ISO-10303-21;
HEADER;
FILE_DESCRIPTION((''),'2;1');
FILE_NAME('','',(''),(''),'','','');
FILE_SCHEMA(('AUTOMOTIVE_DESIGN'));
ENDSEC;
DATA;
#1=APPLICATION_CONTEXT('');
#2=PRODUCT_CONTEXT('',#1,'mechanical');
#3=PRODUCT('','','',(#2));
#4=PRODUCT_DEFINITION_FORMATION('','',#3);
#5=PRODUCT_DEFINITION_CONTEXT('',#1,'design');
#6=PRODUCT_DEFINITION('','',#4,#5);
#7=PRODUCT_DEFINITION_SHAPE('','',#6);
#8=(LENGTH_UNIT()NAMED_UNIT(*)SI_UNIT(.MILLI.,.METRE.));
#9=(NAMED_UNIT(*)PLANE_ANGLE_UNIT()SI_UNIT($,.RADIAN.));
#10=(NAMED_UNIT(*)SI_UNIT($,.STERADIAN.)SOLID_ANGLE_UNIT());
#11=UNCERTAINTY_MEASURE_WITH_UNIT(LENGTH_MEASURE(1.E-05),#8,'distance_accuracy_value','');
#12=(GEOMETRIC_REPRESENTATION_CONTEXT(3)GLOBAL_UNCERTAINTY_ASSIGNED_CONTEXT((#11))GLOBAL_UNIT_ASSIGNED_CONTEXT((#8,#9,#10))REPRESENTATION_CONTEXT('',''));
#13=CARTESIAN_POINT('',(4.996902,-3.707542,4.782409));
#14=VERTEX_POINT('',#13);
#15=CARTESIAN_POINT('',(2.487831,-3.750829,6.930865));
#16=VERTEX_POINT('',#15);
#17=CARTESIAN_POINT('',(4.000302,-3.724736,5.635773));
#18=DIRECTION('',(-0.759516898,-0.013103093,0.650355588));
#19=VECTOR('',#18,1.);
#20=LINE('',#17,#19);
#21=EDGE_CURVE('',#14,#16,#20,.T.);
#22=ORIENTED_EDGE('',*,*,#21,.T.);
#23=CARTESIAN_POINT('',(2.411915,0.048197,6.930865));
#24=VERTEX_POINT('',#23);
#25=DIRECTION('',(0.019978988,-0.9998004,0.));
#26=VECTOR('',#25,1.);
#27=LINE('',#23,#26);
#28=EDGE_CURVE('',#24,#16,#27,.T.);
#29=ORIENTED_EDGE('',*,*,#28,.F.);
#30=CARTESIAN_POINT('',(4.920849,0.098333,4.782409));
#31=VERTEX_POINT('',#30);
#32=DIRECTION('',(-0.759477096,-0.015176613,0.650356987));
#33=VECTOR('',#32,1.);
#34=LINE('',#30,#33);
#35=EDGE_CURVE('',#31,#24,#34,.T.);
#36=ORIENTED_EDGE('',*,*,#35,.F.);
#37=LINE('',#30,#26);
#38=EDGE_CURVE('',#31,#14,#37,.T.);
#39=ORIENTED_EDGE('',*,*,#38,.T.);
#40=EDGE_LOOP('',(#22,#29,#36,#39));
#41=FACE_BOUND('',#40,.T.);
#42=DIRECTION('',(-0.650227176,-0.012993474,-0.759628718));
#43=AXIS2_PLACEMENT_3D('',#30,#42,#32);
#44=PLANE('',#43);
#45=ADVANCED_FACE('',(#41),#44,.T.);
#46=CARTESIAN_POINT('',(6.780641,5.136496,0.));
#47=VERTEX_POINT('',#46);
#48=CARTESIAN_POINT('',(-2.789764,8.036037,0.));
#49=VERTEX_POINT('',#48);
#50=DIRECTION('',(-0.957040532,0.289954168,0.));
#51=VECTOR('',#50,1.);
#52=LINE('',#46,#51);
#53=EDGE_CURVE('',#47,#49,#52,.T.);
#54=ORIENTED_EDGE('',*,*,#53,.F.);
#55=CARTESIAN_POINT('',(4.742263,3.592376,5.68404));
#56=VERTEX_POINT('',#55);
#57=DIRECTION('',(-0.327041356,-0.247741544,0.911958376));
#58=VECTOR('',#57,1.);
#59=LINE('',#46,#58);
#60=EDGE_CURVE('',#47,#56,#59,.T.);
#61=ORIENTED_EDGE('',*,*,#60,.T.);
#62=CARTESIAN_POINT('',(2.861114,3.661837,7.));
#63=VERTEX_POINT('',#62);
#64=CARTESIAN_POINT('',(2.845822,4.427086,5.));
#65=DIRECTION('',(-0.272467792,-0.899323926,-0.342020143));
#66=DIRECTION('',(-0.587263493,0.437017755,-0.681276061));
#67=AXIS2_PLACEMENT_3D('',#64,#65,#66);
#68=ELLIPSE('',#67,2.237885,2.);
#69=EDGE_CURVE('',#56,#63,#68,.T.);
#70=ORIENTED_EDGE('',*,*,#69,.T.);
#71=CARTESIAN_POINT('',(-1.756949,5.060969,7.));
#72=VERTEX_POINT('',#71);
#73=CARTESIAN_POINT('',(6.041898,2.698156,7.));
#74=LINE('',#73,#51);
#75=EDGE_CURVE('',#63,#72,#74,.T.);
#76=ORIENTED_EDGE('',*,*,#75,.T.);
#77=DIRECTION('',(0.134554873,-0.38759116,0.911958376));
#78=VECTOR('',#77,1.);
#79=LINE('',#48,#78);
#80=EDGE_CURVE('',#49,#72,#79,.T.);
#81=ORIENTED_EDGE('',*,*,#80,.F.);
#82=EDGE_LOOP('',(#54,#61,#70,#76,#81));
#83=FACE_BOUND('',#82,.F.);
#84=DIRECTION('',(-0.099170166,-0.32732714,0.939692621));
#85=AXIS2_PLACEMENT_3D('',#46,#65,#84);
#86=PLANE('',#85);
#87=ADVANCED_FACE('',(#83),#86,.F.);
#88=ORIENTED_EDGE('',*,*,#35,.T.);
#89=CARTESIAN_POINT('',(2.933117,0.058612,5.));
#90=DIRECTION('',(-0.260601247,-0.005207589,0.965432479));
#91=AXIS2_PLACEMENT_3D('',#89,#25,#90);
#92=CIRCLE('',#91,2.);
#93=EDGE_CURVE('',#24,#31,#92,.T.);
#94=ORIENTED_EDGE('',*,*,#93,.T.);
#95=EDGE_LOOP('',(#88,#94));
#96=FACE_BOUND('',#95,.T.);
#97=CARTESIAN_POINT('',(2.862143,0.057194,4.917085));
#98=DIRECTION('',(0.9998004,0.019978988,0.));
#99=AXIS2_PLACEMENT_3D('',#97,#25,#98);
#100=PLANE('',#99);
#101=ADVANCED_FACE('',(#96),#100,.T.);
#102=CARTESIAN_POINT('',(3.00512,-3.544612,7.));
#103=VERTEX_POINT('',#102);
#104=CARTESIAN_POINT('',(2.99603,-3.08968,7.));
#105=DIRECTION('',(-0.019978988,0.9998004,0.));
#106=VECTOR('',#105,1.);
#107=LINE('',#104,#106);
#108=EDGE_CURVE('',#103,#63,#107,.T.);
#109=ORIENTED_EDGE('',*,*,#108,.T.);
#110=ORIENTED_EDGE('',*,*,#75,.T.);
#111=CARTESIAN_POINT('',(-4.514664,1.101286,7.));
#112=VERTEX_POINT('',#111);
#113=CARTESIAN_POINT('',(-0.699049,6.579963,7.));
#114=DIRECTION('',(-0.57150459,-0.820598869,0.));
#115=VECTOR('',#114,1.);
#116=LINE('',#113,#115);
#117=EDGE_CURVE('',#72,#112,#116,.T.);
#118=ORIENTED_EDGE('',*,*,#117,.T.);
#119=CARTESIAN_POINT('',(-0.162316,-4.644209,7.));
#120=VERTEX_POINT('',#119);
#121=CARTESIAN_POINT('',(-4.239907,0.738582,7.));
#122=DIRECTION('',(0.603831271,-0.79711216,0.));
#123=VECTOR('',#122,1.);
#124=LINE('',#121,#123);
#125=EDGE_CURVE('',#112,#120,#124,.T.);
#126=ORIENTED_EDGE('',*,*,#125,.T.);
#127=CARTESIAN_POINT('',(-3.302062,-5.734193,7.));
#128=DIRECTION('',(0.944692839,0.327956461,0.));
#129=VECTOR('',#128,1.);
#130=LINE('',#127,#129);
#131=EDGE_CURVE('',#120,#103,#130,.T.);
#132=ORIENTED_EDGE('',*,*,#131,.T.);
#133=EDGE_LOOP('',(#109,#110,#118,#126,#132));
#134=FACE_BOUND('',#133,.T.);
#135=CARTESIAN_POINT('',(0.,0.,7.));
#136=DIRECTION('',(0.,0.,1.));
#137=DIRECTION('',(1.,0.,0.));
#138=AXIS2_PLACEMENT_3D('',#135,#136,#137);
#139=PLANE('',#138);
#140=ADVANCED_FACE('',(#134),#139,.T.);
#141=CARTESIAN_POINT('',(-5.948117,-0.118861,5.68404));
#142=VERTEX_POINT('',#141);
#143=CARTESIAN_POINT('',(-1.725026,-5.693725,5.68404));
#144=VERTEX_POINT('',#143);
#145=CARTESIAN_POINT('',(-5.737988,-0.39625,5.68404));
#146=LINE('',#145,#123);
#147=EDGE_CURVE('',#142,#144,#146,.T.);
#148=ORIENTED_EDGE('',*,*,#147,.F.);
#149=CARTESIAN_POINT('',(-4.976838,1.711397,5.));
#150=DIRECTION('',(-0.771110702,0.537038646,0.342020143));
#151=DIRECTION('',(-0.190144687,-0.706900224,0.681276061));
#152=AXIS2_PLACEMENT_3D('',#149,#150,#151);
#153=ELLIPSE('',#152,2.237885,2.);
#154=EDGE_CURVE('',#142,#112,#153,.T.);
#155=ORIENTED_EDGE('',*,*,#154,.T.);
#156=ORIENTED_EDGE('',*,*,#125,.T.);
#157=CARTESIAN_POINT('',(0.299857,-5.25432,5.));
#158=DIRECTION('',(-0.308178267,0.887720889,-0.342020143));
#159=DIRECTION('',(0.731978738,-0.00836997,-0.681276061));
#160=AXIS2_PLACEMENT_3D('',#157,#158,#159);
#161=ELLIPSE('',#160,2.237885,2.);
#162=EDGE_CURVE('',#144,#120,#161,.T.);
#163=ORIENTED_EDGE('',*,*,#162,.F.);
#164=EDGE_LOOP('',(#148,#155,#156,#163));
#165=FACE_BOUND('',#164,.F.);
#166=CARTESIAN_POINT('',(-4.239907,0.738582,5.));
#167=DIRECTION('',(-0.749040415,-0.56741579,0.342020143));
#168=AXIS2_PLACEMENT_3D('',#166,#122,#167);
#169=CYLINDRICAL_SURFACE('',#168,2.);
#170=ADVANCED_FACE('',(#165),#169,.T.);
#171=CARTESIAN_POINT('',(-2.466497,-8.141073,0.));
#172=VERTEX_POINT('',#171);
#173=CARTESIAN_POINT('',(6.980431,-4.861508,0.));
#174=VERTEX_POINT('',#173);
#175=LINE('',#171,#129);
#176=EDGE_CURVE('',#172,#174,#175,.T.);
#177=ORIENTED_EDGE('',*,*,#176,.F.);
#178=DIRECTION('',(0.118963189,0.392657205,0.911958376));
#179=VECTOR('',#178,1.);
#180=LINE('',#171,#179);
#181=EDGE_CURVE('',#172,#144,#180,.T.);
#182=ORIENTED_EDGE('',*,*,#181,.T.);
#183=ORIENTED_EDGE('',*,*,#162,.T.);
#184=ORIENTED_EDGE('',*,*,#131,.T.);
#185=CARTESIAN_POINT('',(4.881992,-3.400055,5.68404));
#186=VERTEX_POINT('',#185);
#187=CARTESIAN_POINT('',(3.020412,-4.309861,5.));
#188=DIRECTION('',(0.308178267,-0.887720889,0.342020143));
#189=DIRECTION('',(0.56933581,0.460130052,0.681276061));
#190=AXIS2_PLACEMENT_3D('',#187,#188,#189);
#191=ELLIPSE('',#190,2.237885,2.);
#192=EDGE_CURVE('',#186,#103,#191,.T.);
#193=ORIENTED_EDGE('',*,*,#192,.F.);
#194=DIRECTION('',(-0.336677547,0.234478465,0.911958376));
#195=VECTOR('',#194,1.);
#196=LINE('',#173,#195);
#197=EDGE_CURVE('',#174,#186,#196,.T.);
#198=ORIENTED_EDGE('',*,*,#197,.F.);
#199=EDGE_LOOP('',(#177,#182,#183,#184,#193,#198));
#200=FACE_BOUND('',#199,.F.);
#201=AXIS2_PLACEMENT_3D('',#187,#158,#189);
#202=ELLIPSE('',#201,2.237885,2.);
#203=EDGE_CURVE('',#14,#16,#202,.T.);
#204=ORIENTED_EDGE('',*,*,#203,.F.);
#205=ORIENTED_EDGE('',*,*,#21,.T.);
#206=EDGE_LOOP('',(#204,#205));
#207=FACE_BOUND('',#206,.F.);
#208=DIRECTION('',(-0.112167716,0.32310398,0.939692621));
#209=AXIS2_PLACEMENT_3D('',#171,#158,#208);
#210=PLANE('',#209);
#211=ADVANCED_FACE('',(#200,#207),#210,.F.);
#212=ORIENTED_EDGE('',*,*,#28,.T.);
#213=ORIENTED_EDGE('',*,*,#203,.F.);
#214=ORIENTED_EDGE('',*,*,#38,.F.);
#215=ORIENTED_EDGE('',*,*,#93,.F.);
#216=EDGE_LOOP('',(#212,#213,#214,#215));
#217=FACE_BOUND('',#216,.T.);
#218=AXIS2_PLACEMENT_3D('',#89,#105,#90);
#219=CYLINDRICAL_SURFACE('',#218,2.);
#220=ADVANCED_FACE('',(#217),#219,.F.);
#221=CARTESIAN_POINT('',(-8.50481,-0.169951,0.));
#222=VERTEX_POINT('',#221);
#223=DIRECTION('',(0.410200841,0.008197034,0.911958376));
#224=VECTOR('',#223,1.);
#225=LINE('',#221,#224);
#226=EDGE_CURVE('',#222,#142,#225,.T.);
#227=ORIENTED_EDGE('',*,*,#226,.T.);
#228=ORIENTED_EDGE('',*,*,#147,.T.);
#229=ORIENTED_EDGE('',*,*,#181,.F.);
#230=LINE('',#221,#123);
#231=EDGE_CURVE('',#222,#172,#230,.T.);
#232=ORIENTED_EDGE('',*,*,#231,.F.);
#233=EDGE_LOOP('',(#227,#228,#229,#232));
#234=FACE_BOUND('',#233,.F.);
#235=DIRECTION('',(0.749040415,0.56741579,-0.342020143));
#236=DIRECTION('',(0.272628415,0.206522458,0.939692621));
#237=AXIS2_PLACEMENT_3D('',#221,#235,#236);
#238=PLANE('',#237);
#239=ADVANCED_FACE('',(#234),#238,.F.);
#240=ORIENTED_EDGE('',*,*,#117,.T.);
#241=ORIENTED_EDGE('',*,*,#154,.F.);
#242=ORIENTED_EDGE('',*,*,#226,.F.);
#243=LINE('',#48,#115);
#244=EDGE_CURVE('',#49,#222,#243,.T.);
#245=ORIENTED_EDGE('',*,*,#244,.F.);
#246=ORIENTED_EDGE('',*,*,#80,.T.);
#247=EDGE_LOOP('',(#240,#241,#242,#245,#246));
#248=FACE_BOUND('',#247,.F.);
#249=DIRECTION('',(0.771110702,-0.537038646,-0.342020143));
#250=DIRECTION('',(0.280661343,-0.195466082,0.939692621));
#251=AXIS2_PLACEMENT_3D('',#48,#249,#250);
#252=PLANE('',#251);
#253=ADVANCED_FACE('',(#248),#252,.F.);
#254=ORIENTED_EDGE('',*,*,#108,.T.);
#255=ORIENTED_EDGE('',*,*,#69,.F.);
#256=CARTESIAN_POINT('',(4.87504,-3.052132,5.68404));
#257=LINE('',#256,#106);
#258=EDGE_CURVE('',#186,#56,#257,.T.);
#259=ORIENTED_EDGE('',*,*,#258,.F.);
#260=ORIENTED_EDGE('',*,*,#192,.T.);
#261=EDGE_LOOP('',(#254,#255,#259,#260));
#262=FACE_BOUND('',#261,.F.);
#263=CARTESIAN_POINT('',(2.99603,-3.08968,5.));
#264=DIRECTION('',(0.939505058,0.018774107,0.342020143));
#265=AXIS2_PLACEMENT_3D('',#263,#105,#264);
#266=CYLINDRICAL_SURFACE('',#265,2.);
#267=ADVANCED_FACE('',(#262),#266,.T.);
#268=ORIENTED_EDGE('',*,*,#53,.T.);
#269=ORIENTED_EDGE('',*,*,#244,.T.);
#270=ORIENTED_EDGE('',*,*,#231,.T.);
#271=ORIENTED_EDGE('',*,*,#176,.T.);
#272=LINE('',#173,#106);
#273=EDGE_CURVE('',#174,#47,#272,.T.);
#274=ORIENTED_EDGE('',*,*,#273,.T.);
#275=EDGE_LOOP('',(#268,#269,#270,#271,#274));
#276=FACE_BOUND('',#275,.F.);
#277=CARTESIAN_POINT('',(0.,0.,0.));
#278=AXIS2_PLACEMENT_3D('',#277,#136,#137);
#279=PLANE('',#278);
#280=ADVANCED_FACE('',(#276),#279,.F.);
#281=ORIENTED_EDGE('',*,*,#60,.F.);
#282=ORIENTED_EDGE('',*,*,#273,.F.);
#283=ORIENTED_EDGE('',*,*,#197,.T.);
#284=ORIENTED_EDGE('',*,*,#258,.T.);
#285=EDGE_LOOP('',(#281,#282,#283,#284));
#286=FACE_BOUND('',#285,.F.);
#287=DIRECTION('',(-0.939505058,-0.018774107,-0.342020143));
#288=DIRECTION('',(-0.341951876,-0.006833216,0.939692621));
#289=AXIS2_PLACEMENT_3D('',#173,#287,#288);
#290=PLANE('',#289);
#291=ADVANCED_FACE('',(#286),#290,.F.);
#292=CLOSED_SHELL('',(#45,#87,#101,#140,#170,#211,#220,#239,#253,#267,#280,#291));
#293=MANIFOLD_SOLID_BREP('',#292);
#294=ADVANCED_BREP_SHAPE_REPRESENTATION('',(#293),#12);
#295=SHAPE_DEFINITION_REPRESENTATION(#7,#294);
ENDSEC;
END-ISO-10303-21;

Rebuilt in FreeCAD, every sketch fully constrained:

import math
import FreeCAD as App
import Part
import Sketcher
from FreeCAD import Vector
Q = App.Units.Quantity


def edges_at(feature, points):
    """Names of the edges that pass closest to the given points."""
    edges = feature.Shape.Edges
    near = lambda p: min(range(len(edges)), key=lambda i: edges[i].distToShape(Part.Vertex(*p))[0])
    return sorted({f"Edge{near(p) + 1}" for p in points})

doc = App.newDocument("Part")
body = doc.addObject("PartDesign::Body", "Body")

# Sketch on XY plane
sketch1 = body.newObject("Sketcher::SketchObject", "Sketch")
sketch1.AttachmentSupport = (doc.getObject("XY_Plane"), [""])
sketch1.MapMode = "FlatFace"
sketch1.addGeometry([
    Part.LineSegment(Vector(-2, -8, 0), Vector(7, -5, 0)),  # 0
    Part.LineSegment(Vector(7, -5, 0), Vector(7, 5, 0)),  # 1
    Part.LineSegment(Vector(7, 5, 0), Vector(-3, 8, 0)),  # 2
    Part.LineSegment(Vector(-3, 8, 0), Vector(-9, 0, 0)),  # 3
    Part.LineSegment(Vector(-9, 0, 0), Vector(-2, -8, 0)),  # 4
], False)
sketch1.addConstraint([
    Sketcher.Constraint("Coincident", 0, 2, 1, 1),
    Sketcher.Constraint("Coincident", 1, 2, 2, 1),
    Sketcher.Constraint("Coincident", 2, 2, 3, 1),
    Sketcher.Constraint("Coincident", 3, 2, 4, 1),
    Sketcher.Constraint("Coincident", 4, 2, 0, 1),
    Sketcher.Constraint("Equal", 0, 1),
    Sketcher.Constraint("Equal", 1, 2),
    Sketcher.Constraint("Equal", 2, 3),
    Sketcher.Constraint("Equal", 3, 4),
    Sketcher.Constraint("Distance", 0, Q("10 mm")),
    Sketcher.Constraint("DistanceX", -1, 1, 0, 2, Q("6.980431 mm")),
    Sketcher.Constraint("DistanceY", 0, 2, -1, 1, Q("4.861508 mm")),
    Sketcher.Constraint("DistanceX", -1, 1, 1, 2, Q("6.780641 mm")),
    Sketcher.Constraint("DistanceX", 3, 2, -1, 1, Q("8.50481 mm")),
    Sketcher.Constraint("DistanceY", 3, 2, -1, 1, Q("0.169951 mm")),
])
pad1 = body.newObject("PartDesign::Pad", "Pad")
pad1.Profile = sketch1
pad1.Length = 7
pad1.TaperAngle = -20
doc.recompute()

fillet = body.newObject("PartDesign::Fillet", "Fillet")
fillet.Base = (pad1, edges_at(pad1, [(4.333, 0.087, 7), (-3.455, -2.617, 7)]))
fillet.Radius = 2

# Sketch on an angled plane
sketch2 = body.newObject("Sketcher::SketchObject", "Sketch001")
sketch2.Placement = App.Placement(Vector(0, 0, 0), App.Rotation(Vector(0.9998004, 0.019978988, 0), Vector(0, 0, 1), Vector(0.019978988, -0.9998004, 0), "ZXY"))
sketch2.addGeometry([
    Part.LineSegment(Vector(4.9, 4.8, 0), Vector(2.4, 6.9, 0)),
    Part.ArcOfCircle(Part.Circle(Vector(2.9, 5, 0), Vector(0, 0, 1), 2), math.radians(105), math.radians(354)),
], False)
sketch2.addConstraint([
    Sketcher.Constraint("Coincident", 0, 1, 1, 2),
    Sketcher.Constraint("Coincident", 1, 1, 0, 2),
    Sketcher.Constraint("Radius", 1, Q("2 mm")),
    Sketcher.Constraint("DistanceY", -1, 1, 1, 3, Q("5 mm")),
    Sketcher.Constraint("Distance", 0, Q("3.303502 mm")),
    Sketcher.Constraint("DistanceX", -1, 1, 0, 1, Q("4.921831 mm")),
    Sketcher.Constraint("DistanceY", -1, 1, 0, 1, Q("4.782409 mm")),
])
pocket1 = body.newObject("PartDesign::Pocket", "Pocket")
pocket1.Profile = sketch2
pocket1.Type = "ThroughAll"
pocket1.Reversed = True

doc.recompute()
